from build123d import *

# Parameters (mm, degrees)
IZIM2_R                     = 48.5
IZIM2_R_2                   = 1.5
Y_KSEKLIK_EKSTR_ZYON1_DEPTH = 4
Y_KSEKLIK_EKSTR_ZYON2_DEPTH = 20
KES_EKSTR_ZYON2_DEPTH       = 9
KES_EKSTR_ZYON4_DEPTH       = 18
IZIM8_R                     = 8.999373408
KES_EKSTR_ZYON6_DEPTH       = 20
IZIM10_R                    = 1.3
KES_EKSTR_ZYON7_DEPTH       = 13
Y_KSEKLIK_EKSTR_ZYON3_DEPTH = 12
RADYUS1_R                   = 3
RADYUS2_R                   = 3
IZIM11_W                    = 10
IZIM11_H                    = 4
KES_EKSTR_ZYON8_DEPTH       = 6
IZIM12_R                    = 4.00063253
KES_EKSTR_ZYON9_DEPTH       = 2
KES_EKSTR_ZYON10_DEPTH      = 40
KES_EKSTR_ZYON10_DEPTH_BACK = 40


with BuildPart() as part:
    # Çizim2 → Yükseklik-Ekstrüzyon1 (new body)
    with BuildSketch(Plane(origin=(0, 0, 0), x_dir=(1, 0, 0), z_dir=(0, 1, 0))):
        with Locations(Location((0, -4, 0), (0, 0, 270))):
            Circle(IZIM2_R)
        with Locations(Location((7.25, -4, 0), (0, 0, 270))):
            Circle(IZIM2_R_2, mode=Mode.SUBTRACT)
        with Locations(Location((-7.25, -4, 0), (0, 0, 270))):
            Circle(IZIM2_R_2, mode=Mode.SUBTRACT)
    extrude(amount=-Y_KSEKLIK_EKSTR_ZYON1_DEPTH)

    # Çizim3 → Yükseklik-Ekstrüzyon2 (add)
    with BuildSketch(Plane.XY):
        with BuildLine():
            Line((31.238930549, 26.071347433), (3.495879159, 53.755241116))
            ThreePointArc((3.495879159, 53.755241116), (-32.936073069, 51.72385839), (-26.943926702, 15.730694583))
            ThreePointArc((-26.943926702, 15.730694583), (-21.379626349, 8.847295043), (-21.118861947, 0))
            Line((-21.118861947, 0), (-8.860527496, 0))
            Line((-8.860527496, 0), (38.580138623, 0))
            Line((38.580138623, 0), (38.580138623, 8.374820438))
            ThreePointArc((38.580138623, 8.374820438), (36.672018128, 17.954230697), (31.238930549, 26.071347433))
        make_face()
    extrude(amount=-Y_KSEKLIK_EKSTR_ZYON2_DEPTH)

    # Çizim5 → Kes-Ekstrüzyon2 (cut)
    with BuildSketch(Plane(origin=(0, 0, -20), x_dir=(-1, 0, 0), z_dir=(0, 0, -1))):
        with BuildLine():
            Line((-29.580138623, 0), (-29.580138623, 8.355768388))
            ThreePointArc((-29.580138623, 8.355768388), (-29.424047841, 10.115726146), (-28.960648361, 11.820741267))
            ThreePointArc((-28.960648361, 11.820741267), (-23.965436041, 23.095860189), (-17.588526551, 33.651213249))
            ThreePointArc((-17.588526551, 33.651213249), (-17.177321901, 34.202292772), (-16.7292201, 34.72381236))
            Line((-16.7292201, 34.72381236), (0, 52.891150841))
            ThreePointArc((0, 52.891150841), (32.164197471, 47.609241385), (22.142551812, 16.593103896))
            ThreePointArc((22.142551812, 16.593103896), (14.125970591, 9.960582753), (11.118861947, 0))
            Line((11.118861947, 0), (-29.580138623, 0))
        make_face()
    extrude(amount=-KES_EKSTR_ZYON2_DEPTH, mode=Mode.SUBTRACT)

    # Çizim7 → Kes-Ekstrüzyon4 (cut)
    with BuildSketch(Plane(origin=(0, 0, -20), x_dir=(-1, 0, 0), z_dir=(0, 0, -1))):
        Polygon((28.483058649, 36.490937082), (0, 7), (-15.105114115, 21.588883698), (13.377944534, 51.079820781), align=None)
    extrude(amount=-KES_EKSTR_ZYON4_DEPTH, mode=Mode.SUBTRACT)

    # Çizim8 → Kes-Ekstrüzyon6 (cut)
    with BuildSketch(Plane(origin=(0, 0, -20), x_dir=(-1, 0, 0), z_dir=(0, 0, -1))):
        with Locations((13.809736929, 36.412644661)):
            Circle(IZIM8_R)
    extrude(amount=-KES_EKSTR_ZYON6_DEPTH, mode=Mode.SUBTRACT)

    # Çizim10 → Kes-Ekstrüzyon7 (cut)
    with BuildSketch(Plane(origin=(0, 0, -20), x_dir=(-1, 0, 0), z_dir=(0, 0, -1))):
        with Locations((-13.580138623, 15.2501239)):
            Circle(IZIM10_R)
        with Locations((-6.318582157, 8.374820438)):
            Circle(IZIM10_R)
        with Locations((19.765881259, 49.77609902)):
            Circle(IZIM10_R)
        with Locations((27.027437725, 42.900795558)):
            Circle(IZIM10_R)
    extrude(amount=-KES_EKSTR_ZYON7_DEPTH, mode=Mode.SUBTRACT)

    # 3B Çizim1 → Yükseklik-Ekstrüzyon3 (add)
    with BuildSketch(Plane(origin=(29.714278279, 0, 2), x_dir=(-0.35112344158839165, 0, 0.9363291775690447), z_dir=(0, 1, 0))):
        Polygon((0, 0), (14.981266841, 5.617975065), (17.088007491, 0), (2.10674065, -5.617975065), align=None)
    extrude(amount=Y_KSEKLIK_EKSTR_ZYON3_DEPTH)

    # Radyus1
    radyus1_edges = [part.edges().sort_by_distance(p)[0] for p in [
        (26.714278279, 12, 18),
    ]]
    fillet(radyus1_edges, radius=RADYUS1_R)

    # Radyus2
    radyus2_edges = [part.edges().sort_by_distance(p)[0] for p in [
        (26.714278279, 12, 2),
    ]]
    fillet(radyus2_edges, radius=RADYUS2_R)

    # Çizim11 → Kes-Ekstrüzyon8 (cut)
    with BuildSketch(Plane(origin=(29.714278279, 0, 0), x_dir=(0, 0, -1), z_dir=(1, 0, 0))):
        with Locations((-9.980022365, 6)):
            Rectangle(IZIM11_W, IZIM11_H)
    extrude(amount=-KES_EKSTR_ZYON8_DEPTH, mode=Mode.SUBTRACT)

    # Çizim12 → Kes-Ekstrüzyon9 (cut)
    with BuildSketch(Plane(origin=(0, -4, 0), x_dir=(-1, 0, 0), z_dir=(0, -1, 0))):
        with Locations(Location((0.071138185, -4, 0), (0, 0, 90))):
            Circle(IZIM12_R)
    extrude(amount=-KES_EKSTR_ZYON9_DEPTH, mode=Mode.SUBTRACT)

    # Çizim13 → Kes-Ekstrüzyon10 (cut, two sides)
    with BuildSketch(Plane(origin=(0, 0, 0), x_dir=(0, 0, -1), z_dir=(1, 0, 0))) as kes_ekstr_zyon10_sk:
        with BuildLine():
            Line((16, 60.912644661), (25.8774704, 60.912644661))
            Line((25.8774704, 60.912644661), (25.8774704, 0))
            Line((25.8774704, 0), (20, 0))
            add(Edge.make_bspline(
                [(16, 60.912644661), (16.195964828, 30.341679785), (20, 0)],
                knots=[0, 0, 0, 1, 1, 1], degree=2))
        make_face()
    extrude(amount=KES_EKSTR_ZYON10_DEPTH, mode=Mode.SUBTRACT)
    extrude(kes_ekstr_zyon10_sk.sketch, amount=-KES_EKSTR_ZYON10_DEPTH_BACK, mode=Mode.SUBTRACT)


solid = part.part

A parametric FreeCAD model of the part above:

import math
import FreeCAD as App
import Part
import Sketcher
from FreeCAD import Vector


def edges_at(feature, points):
    """Names of the edges that pass closest to the given points."""
    edges = feature.Shape.Edges
    near = lambda p: min(range(len(edges)), key=lambda i: edges[i].distToShape(Part.Vertex(*p))[0])
    return sorted({f"Edge{near(p) + 1}" for p in points})


def add_polygon(sketch, points):
    """Adds a closed chain of lines whose ends are joined by coincident constraints."""
    first, n = sketch.GeometryCount, len(points)
    for a, b in zip(points, points[1:] + points[:1]):
        sketch.addGeometry(Part.LineSegment(App.Vector(*a, 0), App.Vector(*b, 0)), False)
    for i in range(n):
        sketch.addConstraint(Sketcher.Constraint("Coincident", first + i, 2, first + (i + 1) % n, 1))

doc = App.newDocument("Part")
body = doc.addObject("PartDesign::Body", "Body")

# Sketch on XZ plane
sketch1 = body.newObject("Sketcher::SketchObject", "Sketch")
sketch1.AttachmentSupport = (doc.getObject("XZ_Plane"), [""])
sketch1.MapMode = "FlatFace"
sketch1.addGeometry([
    Part.Circle(Vector(0, 4, 0), Vector(0, 0, 1), 48.5),
    Part.Circle(Vector(-7.2, 4, 0), Vector(0, 0, 1), 1.5),
    Part.Circle(Vector(7.2, 4, 0), Vector(0, 0, 1), 1.5),
], False)
sketch1.addConstraint([
    Sketcher.Constraint("Equal", 1, 2),
    Sketcher.Constraint("Symmetric", 1, 3, 2, 3, -2),
    Sketcher.Constraint("PointOnObject", 0, 3, -2),
    Sketcher.Constraint("Horizontal", 0, 3, 1, 3),
    Sketcher.Constraint("Diameter", 0, 97.0),
    Sketcher.Constraint("Diameter", 1, 3.0),
    Sketcher.Constraint("DistanceY", -1, 1, 0, 3, 4.0),
    Sketcher.Constraint("DistanceX", 1, 3, 2, 3, 14.5),
])
pad1 = body.newObject("PartDesign::Pad", "Pad")
pad1.Profile = sketch1
pad1.Length = 4

# Sketch on XY plane
sketch2 = body.newObject("Sketcher::SketchObject", "Sketch001")
sketch2.AttachmentSupport = (doc.getObject("XY_Plane"), [""])
sketch2.MapMode = "FlatFace"
sketch2.addGeometry([
    Part.LineSegment(Vector(31, 26, 0), Vector(3, 54, 0)),  # 0
    Part.ArcOfCircle(Part.Circle(Vector(-14, 36, 0), Vector(0, 0, 1), 24), math.radians(45), math.radians(238)),  # 1
    Part.ArcOfCircle(Part.Circle(Vector(-34, 4, 0), Vector(0, 0, 1), 14), math.radians(-17), math.radians(58)),  # 2
    Part.LineSegment(Vector(-21, 0, 0), Vector(39, 0, 0)),  # 3
    Part.LineSegment(Vector(39, 0, 0), Vector(39, 8, 0)),  # 4
    Part.ArcOfCircle(Part.Circle(Vector(14, 8, 0), Vector(0, 0, 1), 25), math.radians(0), math.radians(45)),  # 5
], False)
sketch2.addConstraint([
    Sketcher.Constraint("Tangent", 0, 2, 1, 1),
    Sketcher.Constraint("Tangent", 1, 2, 2, 2),
    Sketcher.Constraint("Coincident", 2, 1, 3, 1),
    Sketcher.Constraint("Coincident", 3, 2, 4, 1),
    Sketcher.Constraint("Tangent", 4, 2, 5, 1),
    Sketcher.Constraint("Tangent", 5, 2, 0, 1),
    Sketcher.Constraint("Horizontal", 3),
    Sketcher.Constraint("Vertical", 4),
    Sketcher.Constraint("PointOnObject", 2, 1, -1),
    Sketcher.Constraint("Radius", 5, 25.0),
    Sketcher.Constraint("Radius", 1, 24.5),
    Sketcher.Constraint("DistanceX", 3, 1, 3, 2, 59.699001),
    Sketcher.Constraint("Radius", 2, 13.852532),
    Sketcher.Constraint("DistanceX", 2, 3, 0, 2, 37.866001),
    Sketcher.Constraint("DistanceY", 4, 1, 4, 2, 8.37482),
    Sketcher.Constraint("Distance", 0, 39.192791),
    Sketcher.Constraint("DistanceX", -1, 1, 5, 3, 13.580139),
])
pad2 = body.newObject("PartDesign::Pad", "Pad001")
pad2.Profile = sketch2
pad2.Length = 20
pad2.Reversed = True

# Sketch on XY plane
sketch3 = body.newObject("Sketcher::SketchObject", "Sketch002")
sketch3.AttachmentSupport = (doc.getObject("XY_Plane"), [""])
sketch3.MapMode = "FlatFace"
sketch3.AttachmentOffset = App.Placement(Vector(0, 0, -20), App.Rotation())
sketch3.addGeometry([
    Part.LineSegment(Vector(29.6, 8.4, 0), Vector(29.6, 0, 0)),  # 0
    Part.LineSegment(Vector(29.6, 0, 0), Vector(-11.1, 0, 0)),  # 1
    Part.ArcOfCircle(Part.Circle(Vector(-29.1, 0, 0), Vector(0, 0, 1), 18), math.radians(0), math.radians(67)),  # 2
    Part.ArcOfCircle(Part.Circle(Vector(-13.8, 36.4, 0), Vector(0, 0, 1), 21.5), math.radians(50), math.radians(247)),  # 3
    Part.LineSegment(Vector(0, 52.9, 0), Vector(16.7, 34.7, 0)),  # 4
    Part.ArcOfCircle(Part.Circle(Vector(9.4, 27.9, 0), Vector(0, 0, 1), 10), math.radians(34.76), math.radians(42.64)),  # 5
    Part.ArcOfCircle(Part.Circle(Vector(-62.6, -22, 0), Vector(0, 0, 1), 97.6), math.radians(20.27), math.radians(34.76)),  # 6
    Part.ArcOfCircle(Part.Circle(Vector(19.6, 8.4, 0), Vector(0, 0, 1), 10), math.radians(0), math.radians(20)),  # 7
], False)
sketch3.addConstraint([
    Sketcher.Constraint("Coincident", 0, 2, 1, 1),
    Sketcher.Constraint("Coincident", 1, 2, 2, 1),
    Sketcher.Constraint("Tangent", 2, 2, 3, 2),
    Sketcher.Constraint("Coincident", 3, 1, 4, 1),
    Sketcher.Constraint("Tangent", 4, 2, 5, 2),
    Sketcher.Constraint("Tangent", 5, 1, 6, 2),
    Sketcher.Constraint("Tangent", 6, 1, 7, 2),
    Sketcher.Constraint("Tangent", 7, 1, 0, 1),
    Sketcher.Constraint("Vertical", 0),
    Sketcher.Constraint("Horizontal", 1),
    Sketcher.Constraint("Equal", 5, 7),
    Sketcher.Constraint("PointOnObject", 2, 3, -1),
    Sketcher.Constraint("PointOnObject", 0, 2, -1),
    Sketcher.Constraint("PointOnObject", 3, 1, -2),
    Sketcher.Constraint("Radius", 2, 18.0),
    Sketcher.Constraint("Radius", 5, 10.0),
    Sketcher.Constraint("Radius", 3, 21.5),
    Sketcher.Constraint("DistanceX", 1, 2, 1, 1, 40.699001),
    Sketcher.Constraint("Radius", 6, 97.616918),
    Sketcher.Constraint("DistanceY", 0, 2, 0, 1, 8.355768),
    Sketcher.Constraint("DistanceY", -1, 1, 5, 3, 27.949899),
    Sketcher.Constraint("DistanceY", 6, 3, 3, 3, 58.415901),
    Sketcher.Constraint("DistanceY", 5, 1, 4, 2, 1.072599),
    Sketcher.Constraint("Distance", 4, 24.696538),
])
pocket1 = body.newObject("PartDesign::Pocket", "Pocket")
pocket1.Profile = sketch3
pocket1.Length = 9
pocket1.Reversed = True

# Sketch on XY plane
sketch4 = body.newObject("Sketcher::SketchObject", "Sketch003")
sketch4.AttachmentSupport = (doc.getObject("XY_Plane"), [""])
sketch4.MapMode = "FlatFace"
sketch4.AttachmentOffset = App.Placement(Vector(0, 0, -20), App.Rotation())
add_polygon(sketch4, [(0, 7), (-28, 36), (-13, 51), (15, 22)])  # lines 0-3
sketch4.addConstraint([
    Sketcher.Constraint("PointOnObject", 3, 2, -2),
    Sketcher.Constraint("Perpendicular", 0, 1),
    Sketcher.Constraint("Perpendicular", 1, 2),
    Sketcher.Constraint("Perpendicular", 2, 3),
    Sketcher.Constraint("Distance", 0, 41.0),
    Sketcher.Constraint("Distance", 1, 21.0),
    Sketcher.Constraint("DistanceY", -1, 1, 3, 2, 7.0),
    Sketcher.Constraint("DistanceX", 0, 2, -1, 1, 28.483059),
])
pocket2 = body.newObject("PartDesign::Pocket", "Pocket001")
pocket2.Profile = sketch4
pocket2.Length = 18
pocket2.Reversed = True

# Sketch on XY plane
sketch5 = body.newObject("Sketcher::SketchObject", "Sketch004")
sketch5.AttachmentSupport = (doc.getObject("XY_Plane"), [""])
sketch5.MapMode = "FlatFace"
sketch5.AttachmentOffset = App.Placement(Vector(0, 0, -20), App.Rotation())
sketch5.addGeometry(Part.Circle(Vector(-14, 36, 0), Vector(0, 0, 1), 9), False)
sketch5.addConstraint([
    Sketcher.Constraint("Diameter", 0, 17.998747),
    Sketcher.Constraint("DistanceX", 0, 3, -1, 1, 13.809737),
    Sketcher.Constraint("DistanceY", -1, 1, 0, 3, 36.412645),
])
pocket3 = body.newObject("PartDesign::Pocket", "Pocket002")
pocket3.Profile = sketch5
pocket3.Length = 20
pocket3.Reversed = True

# Sketch on XY plane
sketch6 = body.newObject("Sketcher::SketchObject", "Sketch005")
sketch6.AttachmentSupport = (doc.getObject("XY_Plane"), [""])
sketch6.MapMode = "FlatFace"
sketch6.AttachmentOffset = App.Placement(Vector(0, 0, -20), App.Rotation())
sketch6.addGeometry([
    Part.Circle(Vector(13.6, 15.3, 0), Vector(0, 0, 1), 1.3),
    Part.Circle(Vector(6.3, 8.4, 0), Vector(0, 0, 1), 1.3),
    Part.Circle(Vector(-19.8, 49.8, 0), Vector(0, 0, 1), 1.3),
    Part.Circle(Vector(-27, 42.9, 0), Vector(0, 0, 1), 1.3),
], False)
sketch6.addConstraint([
    Sketcher.Constraint("Equal", 0, 1),
    Sketcher.Constraint("Equal", 1, 2),
    Sketcher.Constraint("Equal", 2, 3),
    Sketcher.Constraint("Diameter", 0, 2.6),
    Sketcher.Constraint("DistanceY", -1, 1, 2, 3, 49.776099),
    Sketcher.Constraint("DistanceX", -1, 1, 0, 3, 13.580139),
    Sketcher.Constraint("DistanceY", -1, 1, 1, 3, 8.37482),
    Sketcher.Constraint("DistanceX", 2, 3, -1, 1, 19.765881),
    Sketcher.Constraint("DistanceX", 3, 3, 1, 3, 33.34602),
    Sketcher.Constraint("DistanceY", 0, 3, 3, 3, 27.650672),
    Sketcher.Constraint("DistanceY", -1, 1, 0, 3, 15.250124),
    Sketcher.Constraint("DistanceX", -1, 1, 1, 3, 6.318582),
])
pocket4 = body.newObject("PartDesign::Pocket", "Pocket003")
pocket4.Profile = sketch6
pocket4.Length = 13
pocket4.Reversed = True

# Sketch on XZ plane
sketch7 = body.newObject("Sketcher::SketchObject", "Sketch006")
sketch7.AttachmentSupport = (doc.getObject("XZ_Plane"), [""])
sketch7.MapMode = "FlatFace"
add_polygon(sketch7, [(30, 18), (30, 2), (24, 2), (24, 18)])  # lines 0-3
sketch7.addConstraint([
    Sketcher.Constraint("Vertical", 0),
    Sketcher.Constraint("Horizontal", 1),
    Sketcher.Constraint("Vertical", 2),
    Sketcher.Constraint("Horizontal", 3),
    Sketcher.Constraint("DistanceX", 1, 2, 1, 1, 6.0),
    Sketcher.Constraint("DistanceY", 0, 2, 0, 1, 16.0),
    Sketcher.Constraint("DistanceY", -1, 1, 0, 2, 2.0),
    Sketcher.Constraint("DistanceX", -1, 1, 0, 2, 29.714278),
])
pad3 = body.newObject("PartDesign::Pad", "Pad002")
pad3.Profile = sketch7
pad3.Length = 12
pad3.Reversed = True
doc.recompute()

fillet = body.newObject("PartDesign::Fillet", "Fillet")
fillet.Base = (pad3, edges_at(pad3, [(26.714, 12, 18)]))
fillet.Radius = 3
doc.recompute()

fillet2 = body.newObject("PartDesign::Fillet", "Fillet001")
fillet2.Base = (fillet, edges_at(fillet, [(26.714, 12, 2)]))
fillet2.Radius = 3

# Sketch on YZ plane
sketch8 = body.newObject("Sketcher::SketchObject", "Sketch007")
sketch8.AttachmentSupport = (doc.getObject("YZ_Plane"), [""])
sketch8.MapMode = "FlatFace"
sketch8.AttachmentOffset = App.Placement(Vector(0, 0, 29.714278), App.Rotation())
add_polygon(sketch8, [(8, 15), (4, 15), (4, 5), (8, 5)])  # lines 0-3
sketch8.addConstraint([
    Sketcher.Constraint("Horizontal", 0),
    Sketcher.Constraint("Vertical", 1),
    Sketcher.Constraint("Horizontal", 2),
    Sketcher.Constraint("Vertical", 3),
    Sketcher.Constraint("DistanceX", 0, 2, 0, 1, 4.0),
    Sketcher.Constraint("DistanceY", 1, 2, 1, 1, 10.0),
    Sketcher.Constraint("DistanceX", -1, 1, 0, 2, 4.0),
    Sketcher.Constraint("DistanceY", -1, 1, 0, 2, 14.980022),
])
pocket5 = body.newObject("PartDesign::Pocket", "Pocket004")
pocket5.Profile = sketch8
pocket5.Length = 6

# Sketch on XZ plane
sketch9 = body.newObject("Sketcher::SketchObject", "Sketch008")
sketch9.AttachmentSupport = (doc.getObject("XZ_Plane"), [""])
sketch9.MapMode = "FlatFace"
sketch9.AttachmentOffset = App.Placement(Vector(0, 0, 4), App.Rotation())
sketch9.addGeometry(Part.Circle(Vector(-0.1, 4, 0), Vector(0, 0, 1), 4), False)
sketch9.addConstraint([
    Sketcher.Constraint("DistanceY", -1, 1, 0, 3, 4.0),
    Sketcher.Constraint("Diameter", 0, 8.001265),
    Sketcher.Constraint("DistanceX", 0, 3, -1, 1, 0.071138),
])
pocket6 = body.newObject("PartDesign::Pocket", "Pocket005")
pocket6.Profile = sketch9
pocket6.Length = 2

# Sketch on YZ plane
sketch10 = body.newObject("Sketcher::SketchObject", "Sketch009")
sketch10.AttachmentSupport = (doc.getObject("YZ_Plane"), [""])
sketch10.MapMode = "FlatFace"
sketch10.addGeometry([
    Part.LineSegment(Vector(60.912645, -25.87747, 0), Vector(60.912645, -16, 0)),
    Part.BSplineCurve([Vector(60.912645, -16, 0), Vector(30.34168, -16.195965, 0), Vector(0, -20, 0)], [3, 3], [0, 1], False, 2, [1, 1, 1], False),
    Part.LineSegment(Vector(0, -20, 0), Vector(0, -25.87747, 0)),
    Part.LineSegment(Vector(0, -25.87747, 0), Vector(60.912645, -25.87747, 0)),
], False)
sketch10.addConstraint([
    Sketcher.Constraint("Block", 1),
    Sketcher.Constraint("Coincident", 0, 2, 1, 1),
    Sketcher.Constraint("Coincident", 1, 2, 2, 1),
    Sketcher.Constraint("Coincident", 2, 2, 3, 1),
    Sketcher.Constraint("Coincident", 3, 2, 0, 1),
    Sketcher.Constraint("Vertical", 0),
    Sketcher.Constraint("Vertical", 2),
    Sketcher.Constraint("Horizontal", 3),
    Sketcher.Constraint("DistanceY", 0, 1, 0, 2, 9.87747),
])
pocket7 = body.newObject("PartDesign::Pocket", "Pocket006")
pocket7.Profile = sketch10
pocket7.Type = "ThroughAll"
pocket7.Midplane = True

doc.recompute()
